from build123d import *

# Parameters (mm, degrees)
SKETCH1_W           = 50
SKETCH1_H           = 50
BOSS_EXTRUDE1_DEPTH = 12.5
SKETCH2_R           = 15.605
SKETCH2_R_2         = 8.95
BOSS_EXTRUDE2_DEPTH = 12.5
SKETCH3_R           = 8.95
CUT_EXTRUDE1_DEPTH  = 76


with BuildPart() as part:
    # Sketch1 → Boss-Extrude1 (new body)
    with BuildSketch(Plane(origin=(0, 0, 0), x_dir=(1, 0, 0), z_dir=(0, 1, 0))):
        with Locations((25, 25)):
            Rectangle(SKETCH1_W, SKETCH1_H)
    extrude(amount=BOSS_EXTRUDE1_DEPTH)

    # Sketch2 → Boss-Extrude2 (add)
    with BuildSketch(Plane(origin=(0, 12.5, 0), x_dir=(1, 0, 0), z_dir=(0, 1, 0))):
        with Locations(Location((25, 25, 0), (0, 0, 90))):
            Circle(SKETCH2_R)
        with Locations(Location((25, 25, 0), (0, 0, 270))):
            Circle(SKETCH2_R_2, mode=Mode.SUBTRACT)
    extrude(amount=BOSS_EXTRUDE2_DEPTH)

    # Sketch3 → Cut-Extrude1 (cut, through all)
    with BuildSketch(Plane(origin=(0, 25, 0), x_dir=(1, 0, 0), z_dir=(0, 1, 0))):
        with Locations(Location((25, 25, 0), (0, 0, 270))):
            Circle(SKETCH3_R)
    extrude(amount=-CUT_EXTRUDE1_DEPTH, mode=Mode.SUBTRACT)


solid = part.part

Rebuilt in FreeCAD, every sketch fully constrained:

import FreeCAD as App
import Part
import Sketcher
from FreeCAD import Vector
Q = App.Units.Quantity


def add_polygon(sketch, points):
    """Adds a closed chain of lines whose ends are joined by coincident constraints."""
    first, n = sketch.GeometryCount, len(points)
    for a, b in zip(points, points[1:] + points[:1]):
        sketch.addGeometry(Part.LineSegment(App.Vector(*a, 0), App.Vector(*b, 0)), False)
    for i in range(n):
        sketch.addConstraint(Sketcher.Constraint("Coincident", first + i, 2, first + (i + 1) % n, 1))

doc = App.newDocument("Part")
body = doc.addObject("PartDesign::Body", "Body")

# Sketch on XZ plane
sketch1 = doc.addObject("Sketcher::SketchObject", "Sketch")
body.addObject(sketch1)
sketch1.AttachmentSupport = (doc.XZ_Plane, [""])
sketch1.MapMode = "FlatFace"
add_polygon(sketch1, [(0, -50), (0, 0), (50, 0), (50, -50)])  # lines 0-3
sketch1.addConstraint(Sketcher.Constraint("Vertical", 0))
sketch1.addConstraint(Sketcher.Constraint("Horizontal", 1))
sketch1.addConstraint(Sketcher.Constraint("Vertical", 2))
sketch1.addConstraint(Sketcher.Constraint("Horizontal", 3))
sketch1.addConstraint(Sketcher.Constraint("Coincident", 0, 2, -1, 1))
sketch1.addConstraint(Sketcher.Constraint("Equal", 3, 0))
sketch1.addConstraint(Sketcher.Constraint("DistanceX", 1, 1, 1, 2, Q("50 mm")))
pad1 = doc.addObject("PartDesign::Pad", "Pad")
body.addObject(pad1)
pad1.Profile = sketch1
pad1.Length = 12.5
pad1.Reversed = True

# Sketch on XZ plane
sketch2 = doc.addObject("Sketcher::SketchObject", "Sketch001")
body.addObject(sketch2)
sketch2.AttachmentSupport = (doc.XZ_Plane, [""])
sketch2.MapMode = "FlatFace"
sketch2.AttachmentOffset = App.Placement(Vector(0, 0, -12.5), App.Rotation())
sketch2.addGeometry(Part.Circle(Vector(25, -25, 0), Vector(0, 0, 1), 15.605), False)
sketch2.addGeometry(Part.Circle(Vector(25, -25, 0), Vector(0, 0, 1), 8.95), False)
sketch2.addConstraint(Sketcher.Constraint("Coincident", 1, 3, 0, 3))
sketch2.addConstraint(Sketcher.Constraint("Diameter", 1, Q("17.9 mm")))
sketch2.addConstraint(Sketcher.Constraint("Diameter", 0, Q("31.21 mm")))
sketch2.addConstraint(Sketcher.Constraint("DistanceX", -1, 1, 0, 3, Q("25 mm")))
sketch2.addConstraint(Sketcher.Constraint("DistanceY", 0, 3, -1, 1, Q("25 mm")))
pad2 = doc.addObject("PartDesign::Pad", "Pad001")
body.addObject(pad2)
pad2.Profile = sketch2
pad2.Length = 12.5
pad2.Reversed = True

# Sketch on XZ plane
sketch3 = doc.addObject("Sketcher::SketchObject", "Sketch002")
body.addObject(sketch3)
sketch3.AttachmentSupport = (doc.XZ_Plane, [""])
sketch3.MapMode = "FlatFace"
sketch3.AttachmentOffset = App.Placement(Vector(0, 0, -25), App.Rotation())
sketch3.addGeometry(Part.Circle(Vector(25, -25, 0), Vector(0, 0, 1), 8.95), False)
sketch3.addConstraint(Sketcher.Constraint("Diameter", 0, Q("17.9 mm")))
sketch3.addConstraint(Sketcher.Constraint("DistanceX", -1, 1, 0, 3, Q("25 mm")))
sketch3.addConstraint(Sketcher.Constraint("DistanceY", 0, 3, -1, 1, Q("25 mm")))
pocket1 = doc.addObject("PartDesign::Pocket", "Pocket")
body.addObject(pocket1)
pocket1.Profile = sketch3
pocket1.Type = "ThroughAll"
pocket1.Reversed = True

doc.recompute()
